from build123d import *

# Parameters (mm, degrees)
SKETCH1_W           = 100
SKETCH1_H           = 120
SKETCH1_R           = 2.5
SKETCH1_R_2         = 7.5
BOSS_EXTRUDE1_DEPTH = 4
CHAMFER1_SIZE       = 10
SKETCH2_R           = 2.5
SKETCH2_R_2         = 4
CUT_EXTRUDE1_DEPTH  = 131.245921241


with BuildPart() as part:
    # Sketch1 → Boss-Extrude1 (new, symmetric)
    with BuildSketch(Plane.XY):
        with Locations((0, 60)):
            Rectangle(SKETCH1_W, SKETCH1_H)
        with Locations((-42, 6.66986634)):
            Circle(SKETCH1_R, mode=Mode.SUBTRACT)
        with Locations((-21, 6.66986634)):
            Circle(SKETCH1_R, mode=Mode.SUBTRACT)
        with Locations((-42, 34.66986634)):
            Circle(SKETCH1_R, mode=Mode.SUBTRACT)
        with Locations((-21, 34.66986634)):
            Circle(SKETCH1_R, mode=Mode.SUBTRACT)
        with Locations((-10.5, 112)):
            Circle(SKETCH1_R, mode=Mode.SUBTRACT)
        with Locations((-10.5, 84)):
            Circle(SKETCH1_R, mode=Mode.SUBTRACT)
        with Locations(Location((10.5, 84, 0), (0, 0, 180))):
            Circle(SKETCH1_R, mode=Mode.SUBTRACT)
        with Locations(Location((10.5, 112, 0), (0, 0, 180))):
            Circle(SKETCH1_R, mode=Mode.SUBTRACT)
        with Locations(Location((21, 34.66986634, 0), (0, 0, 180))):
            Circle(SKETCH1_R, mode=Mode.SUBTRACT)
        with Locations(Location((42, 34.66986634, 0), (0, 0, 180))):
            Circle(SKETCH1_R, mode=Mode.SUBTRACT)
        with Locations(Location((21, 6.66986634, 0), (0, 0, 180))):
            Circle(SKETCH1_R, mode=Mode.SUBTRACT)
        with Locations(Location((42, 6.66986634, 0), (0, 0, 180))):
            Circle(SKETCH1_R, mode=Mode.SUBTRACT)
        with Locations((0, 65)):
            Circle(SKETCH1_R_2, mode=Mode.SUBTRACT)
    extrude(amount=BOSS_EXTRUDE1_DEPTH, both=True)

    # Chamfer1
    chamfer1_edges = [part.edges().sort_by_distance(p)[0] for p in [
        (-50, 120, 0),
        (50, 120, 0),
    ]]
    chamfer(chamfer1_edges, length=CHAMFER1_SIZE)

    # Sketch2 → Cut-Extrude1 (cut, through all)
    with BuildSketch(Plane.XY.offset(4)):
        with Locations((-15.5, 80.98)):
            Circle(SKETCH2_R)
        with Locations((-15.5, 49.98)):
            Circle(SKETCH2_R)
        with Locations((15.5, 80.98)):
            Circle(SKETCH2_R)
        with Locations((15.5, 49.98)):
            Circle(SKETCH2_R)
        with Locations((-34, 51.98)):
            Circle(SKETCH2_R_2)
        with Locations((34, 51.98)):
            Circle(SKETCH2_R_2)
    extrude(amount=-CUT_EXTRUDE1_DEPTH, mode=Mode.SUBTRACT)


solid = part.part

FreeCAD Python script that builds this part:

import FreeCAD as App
import Part
import Sketcher

V = App.Vector


def edges_at(feature, points):
    """Names of the edges that pass closest to the given points."""
    edges = feature.Shape.Edges
    near = lambda p: min(range(len(edges)), key=lambda i: edges[i].distToShape(Part.Vertex(*p))[0])
    return sorted({f"Edge{near(p) + 1}" for p in points})

doc = App.newDocument("Part")
body = doc.addObject("PartDesign::Body", "Body")

# Sketch on XY plane
sketch1 = doc.addObject("Sketcher::SketchObject", "Sketch")
body.addObject(sketch1)
sketch1.AttachmentSupport = (doc.XY_Plane, [""])
sketch1.MapMode = "FlatFace"
sketch1.addGeometry([
    Part.LineSegment(V(-50, 120, 0), V(-50, 0, 0)),  # 0
    Part.LineSegment(V(-50, 0, 0), V(50, 0, 0)),  # 1
    Part.LineSegment(V(50, 0, 0), V(50, 120, 0)),  # 2
    Part.LineSegment(V(50, 120, 0), V(-50, 120, 0)),  # 3
    Part.Circle(V(-42, 6.7, 0), V(0, 0, 1), 2.5),  # 4
    Part.Circle(V(-21, 6.7, 0), V(0, 0, 1), 2.5),  # 5
    Part.Circle(V(-42, 34.7, 0), V(0, 0, 1), 2.5),  # 6
    Part.Circle(V(-21, 34.7, 0), V(0, 0, 1), 2.5),  # 7
    Part.Circle(V(21, 6.7, 0), V(0, 0, 1), 2.5),  # 8
    Part.Circle(V(42, 6.7, 0), V(0, 0, 1), 2.5),  # 9
    Part.Circle(V(21, 34.7, 0), V(0, 0, 1), 2.5),  # 10
    Part.Circle(V(42, 34.7, 0), V(0, 0, 1), 2.5),  # 11
    Part.Circle(V(-10.5, 84, 0), V(0, 0, 1), 2.5),  # 12
    Part.Circle(V(-10.5, 112, 0), V(0, 0, 1), 2.5),  # 13
    Part.Circle(V(0, 65, 0), V(0, 0, 1), 7.5),  # 14
    Part.Circle(V(10.5, 84, 0), V(0, 0, 1), 2.5),  # 15
    Part.Circle(V(10.5, 112, 0), V(0, 0, 1), 2.5),  # 16
], False)
sketch1.addConstraint([
    Sketcher.Constraint("Coincident", 0, 2, 1, 1),
    Sketcher.Constraint("Coincident", 1, 2, 2, 1),
    Sketcher.Constraint("Coincident", 2, 2, 3, 1),
    Sketcher.Constraint("Coincident", 3, 2, 0, 1),
    Sketcher.Constraint("Vertical", 0),
    Sketcher.Constraint("Horizontal", 1),
    Sketcher.Constraint("Vertical", 2),
    Sketcher.Constraint("Horizontal", 3),
    Sketcher.Constraint("Equal", 4, 5),
    Sketcher.Constraint("Equal", 5, 6),
    Sketcher.Constraint("Equal", 6, 7),
    Sketcher.Constraint("Equal", 7, 8),
    Sketcher.Constraint("Equal", 8, 9),
    Sketcher.Constraint("Equal", 9, 10),
    Sketcher.Constraint("Equal", 10, 11),
    Sketcher.Constraint("Equal", 11, 12),
    Sketcher.Constraint("Equal", 12, 13),
    Sketcher.Constraint("Equal", 13, 15),
    Sketcher.Constraint("Equal", 15, 16),
    Sketcher.Constraint("Symmetric", 0, 2, 1, 2, -1, 1),
    Sketcher.Constraint("Symmetric", 5, 3, 8, 3, -2),
    Sketcher.Constraint("Symmetric", 4, 3, 9, 3, -2),
    Sketcher.Constraint("Symmetric", 7, 3, 10, 3, -2),
    Sketcher.Constraint("Symmetric", 6, 3, 11, 3, -2),
    Sketcher.Constraint("Symmetric", 12, 3, 15, 3, -2),
    Sketcher.Constraint("Symmetric", 13, 3, 16, 3, -2),
    Sketcher.Constraint("PointOnObject", 14, 3, -2),
    Sketcher.Constraint("Horizontal", 4, 3, 5, 3),
    Sketcher.Constraint("Horizontal", 6, 3, 7, 3),
    Sketcher.Constraint("Vertical", 4, 3, 6, 3),
    Sketcher.Constraint("Vertical", 5, 3, 7, 3),
    Sketcher.Constraint("Vertical", 12, 3, 13, 3),
    Sketcher.Constraint("Diameter", 4, 5.0),
    Sketcher.Constraint("Diameter", 14, 15.0),
    Sketcher.Constraint("DistanceX", 1, 1, 1, 2, 100.0),
    Sketcher.Constraint("DistanceY", 0, 2, 0, 1, 120.0),
    Sketcher.Constraint("DistanceX", 4, 3, -1, 1, 42.0),
    Sketcher.Constraint("DistanceX", 5, 3, -1, 1, 21.0),
    Sketcher.Constraint("DistanceY", -1, 1, 12, 3, 84.0),
    Sketcher.Constraint("DistanceY", -1, 1, 13, 3, 112.0),
    Sketcher.Constraint("DistanceY", -1, 1, 14, 3, 65.0),
    Sketcher.Constraint("DistanceY", 4, 3, 6, 3, 28.0),
    Sketcher.Constraint("DistanceX", 12, 3, 15, 3, 21.0),
    Sketcher.Constraint("DistanceY", -1, 1, 4, 3, 6.669866),
])
pad1 = doc.addObject("PartDesign::Pad", "Pad")
body.addObject(pad1)
pad1.Profile = sketch1
pad1.Length = 8
pad1.Midplane = True
doc.recompute()

chamfer = doc.addObject("PartDesign::Chamfer", "Chamfer")
body.addObject(chamfer)
chamfer.Base = (pad1, edges_at(pad1, [(-50, 120, 0), (50, 120, 0)]))
chamfer.Size = 10

# Sketch on XY plane
sketch2 = doc.addObject("Sketcher::SketchObject", "Sketch001")
body.addObject(sketch2)
sketch2.AttachmentSupport = (doc.XY_Plane, [""])
sketch2.MapMode = "FlatFace"
sketch2.AttachmentOffset = App.Placement(V(0, 0, 4), App.Rotation())
sketch2.addGeometry([
    Part.Circle(V(-15.5, 81, 0), V(0, 0, 1), 2.5),  # 0
    Part.Circle(V(-15.5, 50, 0), V(0, 0, 1), 2.5),  # 1
    Part.Circle(V(15.5, 81, 0), V(0, 0, 1), 2.5),  # 2
    Part.Circle(V(15.5, 50, 0), V(0, 0, 1), 2.5),  # 3
    Part.Circle(V(-34, 52, 0), V(0, 0, 1), 4),  # 4
    Part.Circle(V(34, 52, 0), V(0, 0, 1), 4),  # 5
], False)
sketch2.addConstraint([
    Sketcher.Constraint("Equal", 0, 1),
    Sketcher.Constraint("Equal", 1, 2),
    Sketcher.Constraint("Equal", 2, 3),
    Sketcher.Constraint("Equal", 4, 5),
    Sketcher.Constraint("Symmetric", 0, 3, 2, 3, -2),
    Sketcher.Constraint("Symmetric", 1, 3, 3, 3, -2),
    Sketcher.Constraint("Symmetric", 4, 3, 5, 3, -2),
    Sketcher.Constraint("Vertical", 0, 3, 1, 3),
    Sketcher.Constraint("Diameter", 0, 5.0),
    Sketcher.Constraint("Diameter", 4, 8.0),
    Sketcher.Constraint("DistanceX", 4, 3, -1, 1, 34.0),
    Sketcher.Constraint("DistanceY", 1, 3, 0, 3, 31.0),
    Sketcher.Constraint("DistanceX", 0, 3, 2, 3, 31.0),
    Sketcher.Constraint("DistanceY", 1, 3, 4, 3, 2.0),
    Sketcher.Constraint("DistanceY", -1, 1, 0, 3, 80.98),
])
pocket1 = doc.addObject("PartDesign::Pocket", "Pocket")
body.addObject(pocket1)
pocket1.Profile = sketch2
pocket1.Type = "ThroughAll"

doc.recompute()
